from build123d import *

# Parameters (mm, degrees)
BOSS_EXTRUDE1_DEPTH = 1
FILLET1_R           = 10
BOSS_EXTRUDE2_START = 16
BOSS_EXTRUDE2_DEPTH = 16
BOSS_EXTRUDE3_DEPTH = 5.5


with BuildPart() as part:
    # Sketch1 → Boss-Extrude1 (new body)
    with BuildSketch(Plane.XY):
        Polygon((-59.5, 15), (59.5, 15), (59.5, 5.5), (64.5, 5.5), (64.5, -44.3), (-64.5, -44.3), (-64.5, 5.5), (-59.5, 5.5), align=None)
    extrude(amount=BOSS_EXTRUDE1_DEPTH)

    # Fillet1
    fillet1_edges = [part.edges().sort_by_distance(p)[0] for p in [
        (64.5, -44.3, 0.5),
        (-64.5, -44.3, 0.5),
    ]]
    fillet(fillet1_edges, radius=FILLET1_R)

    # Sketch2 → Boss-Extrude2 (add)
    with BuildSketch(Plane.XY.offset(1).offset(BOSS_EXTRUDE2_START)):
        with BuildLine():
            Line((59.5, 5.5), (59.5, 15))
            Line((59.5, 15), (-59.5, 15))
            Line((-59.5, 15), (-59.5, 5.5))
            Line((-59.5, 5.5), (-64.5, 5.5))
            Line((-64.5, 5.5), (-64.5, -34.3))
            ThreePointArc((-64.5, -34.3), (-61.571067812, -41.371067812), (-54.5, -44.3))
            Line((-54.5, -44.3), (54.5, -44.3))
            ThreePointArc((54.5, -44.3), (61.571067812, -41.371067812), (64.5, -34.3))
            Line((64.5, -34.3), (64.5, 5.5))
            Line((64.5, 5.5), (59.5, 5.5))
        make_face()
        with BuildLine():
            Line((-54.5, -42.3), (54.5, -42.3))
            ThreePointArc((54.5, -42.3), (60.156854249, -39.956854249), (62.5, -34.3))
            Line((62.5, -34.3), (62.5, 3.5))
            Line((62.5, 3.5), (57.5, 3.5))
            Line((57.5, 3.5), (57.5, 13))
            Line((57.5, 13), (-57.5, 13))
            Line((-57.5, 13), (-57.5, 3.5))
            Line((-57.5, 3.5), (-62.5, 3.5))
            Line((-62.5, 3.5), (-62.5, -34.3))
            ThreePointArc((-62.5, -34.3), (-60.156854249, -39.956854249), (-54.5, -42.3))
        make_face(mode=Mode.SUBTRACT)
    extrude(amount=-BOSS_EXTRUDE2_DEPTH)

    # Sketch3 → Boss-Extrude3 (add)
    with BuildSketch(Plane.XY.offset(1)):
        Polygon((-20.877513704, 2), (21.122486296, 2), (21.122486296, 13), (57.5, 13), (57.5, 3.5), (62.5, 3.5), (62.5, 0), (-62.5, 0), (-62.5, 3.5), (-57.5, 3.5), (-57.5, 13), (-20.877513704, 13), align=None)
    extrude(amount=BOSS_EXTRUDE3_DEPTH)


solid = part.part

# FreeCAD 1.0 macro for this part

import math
import FreeCAD as App
import Part
import Sketcher


def edges_at(feature, points):
    """Names of the edges that pass closest to the given points."""
    edges = feature.Shape.Edges
    near = lambda p: min(range(len(edges)), key=lambda i: edges[i].distToShape(Part.Vertex(*p))[0])
    return sorted({f"Edge{near(p) + 1}" for p in points})

doc = App.newDocument("Part")
body = doc.addObject("PartDesign::Body", "Body")

# Sketch on XY plane
sketch1 = body.newObject("Sketcher::SketchObject", "Sketch")
sketch1.AttachmentSupport = (doc.getObject("XY_Plane"), [""])
sketch1.MapMode = "FlatFace"
sketch1.addGeometry(Part.LineSegment(App.Vector(59.5, 15, 0), App.Vector(-59.5, 15, 0)), False)
sketch1.addGeometry(Part.LineSegment(App.Vector(-59.5, 15, 0), App.Vector(-59.5, 5.5, 0)), False)
sketch1.addGeometry(Part.LineSegment(App.Vector(-59.5, 5.5, 0), App.Vector(-64.5, 5.5, 0)), False)
sketch1.addGeometry(Part.LineSegment(App.Vector(-64.5, 5.5, 0), App.Vector(-64.5, -44.3, 0)), False)
sketch1.addGeometry(Part.LineSegment(App.Vector(-64.5, -44.3, 0), App.Vector(64.5, -44.3, 0)), False)
sketch1.addGeometry(Part.LineSegment(App.Vector(64.5, -44.3, 0), App.Vector(64.5, 5.5, 0)), False)
sketch1.addGeometry(Part.LineSegment(App.Vector(64.5, 5.5, 0), App.Vector(59.5, 5.5, 0)), False)
sketch1.addGeometry(Part.LineSegment(App.Vector(59.5, 5.5, 0), App.Vector(59.5, 15, 0)), False)
sketch1.addConstraint(Sketcher.Constraint("Coincident", 0, 2, 1, 1))
sketch1.addConstraint(Sketcher.Constraint("Coincident", 1, 2, 2, 1))
sketch1.addConstraint(Sketcher.Constraint("Coincident", 2, 2, 3, 1))
sketch1.addConstraint(Sketcher.Constraint("Coincident", 3, 2, 4, 1))
sketch1.addConstraint(Sketcher.Constraint("Coincident", 4, 2, 5, 1))
sketch1.addConstraint(Sketcher.Constraint("Coincident", 5, 2, 6, 1))
sketch1.addConstraint(Sketcher.Constraint("Coincident", 6, 2, 7, 1))
sketch1.addConstraint(Sketcher.Constraint("Coincident", 7, 2, 0, 1))
sketch1.addConstraint(Sketcher.Constraint("Horizontal", 0))
sketch1.addConstraint(Sketcher.Constraint("Vertical", 1))
sketch1.addConstraint(Sketcher.Constraint("Horizontal", 2))
sketch1.addConstraint(Sketcher.Constraint("Vertical", 3))
sketch1.addConstraint(Sketcher.Constraint("Horizontal", 4))
sketch1.addConstraint(Sketcher.Constraint("Vertical", 5))
sketch1.addConstraint(Sketcher.Constraint("Horizontal", 6))
sketch1.addConstraint(Sketcher.Constraint("Vertical", 7))
sketch1.addConstraint(Sketcher.Constraint("Symmetric", 2, 2, 5, 2, -2))
sketch1.addConstraint(Sketcher.Constraint("Equal", 2, 6))
sketch1.addConstraint(Sketcher.Constraint("DistanceX", 0, 2, 0, 1, 119.0))
sketch1.addConstraint(Sketcher.Constraint("DistanceX", 2, 2, 2, 1, 5.0))
sketch1.addConstraint(Sketcher.Constraint("DistanceY", 1, 2, 1, 1, 9.5))
sketch1.addConstraint(Sketcher.Constraint("DistanceY", 3, 2, 3, 1, 49.8))
sketch1.addConstraint(Sketcher.Constraint("DistanceY", -1, 1, 0, 2, 15.0))
pad1 = body.newObject("PartDesign::Pad", "Pad")
pad1.Profile = sketch1
pad1.Length = 1
doc.recompute()

fillet = body.newObject("PartDesign::Fillet", "Fillet")
fillet.Base = (pad1, edges_at(pad1, [(64.5, -44.3, 0.5), (-64.5, -44.3, 0.5)]))
fillet.Radius = 10

# Sketch on XY plane
sketch2 = body.newObject("Sketcher::SketchObject", "Sketch001")
sketch2.AttachmentSupport = (doc.getObject("XY_Plane"), [""])
sketch2.MapMode = "FlatFace"
sketch2.AttachmentOffset = App.Placement(App.Vector(0, 0, 17), App.Rotation())
sketch2.addGeometry(Part.LineSegment(App.Vector(59.5, 5.5, 0), App.Vector(59.5, 15, 0)), False)
sketch2.addGeometry(Part.LineSegment(App.Vector(59.5, 15, 0), App.Vector(-59.5, 15, 0)), False)
sketch2.addGeometry(Part.LineSegment(App.Vector(-59.5, 15, 0), App.Vector(-59.5, 5.5, 0)), False)
sketch2.addGeometry(Part.LineSegment(App.Vector(-59.5, 5.5, 0), App.Vector(-64.5, 5.5, 0)), False)
sketch2.addGeometry(Part.LineSegment(App.Vector(-64.5, 5.5, 0), App.Vector(-64.5, -34.3, 0)), False)
sketch2.addGeometry(Part.ArcOfCircle(Part.Circle(App.Vector(-54.5, -34.3, 0), App.Vector(0, 0, 1), 10), math.radians(180), math.radians(270)), False)
sketch2.addGeometry(Part.LineSegment(App.Vector(-54.5, -44.3, 0), App.Vector(54.5, -44.3, 0)), False)
sketch2.addGeometry(Part.ArcOfCircle(Part.Circle(App.Vector(54.5, -34.3, 0), App.Vector(0, 0, 1), 10), math.radians(-90), math.radians(0)), False)
sketch2.addGeometry(Part.LineSegment(App.Vector(64.5, -34.3, 0), App.Vector(64.5, 5.5, 0)), False)
sketch2.addGeometry(Part.LineSegment(App.Vector(64.5, 5.5, 0), App.Vector(59.5, 5.5, 0)), False)
sketch2.addGeometry(Part.LineSegment(App.Vector(54.5, -42.3, 0), App.Vector(-54.5, -42.3, 0)), False)
sketch2.addGeometry(Part.ArcOfCircle(Part.Circle(App.Vector(-54.5, -34.3, 0), App.Vector(0, 0, 1), 8), math.radians(-180), math.radians(-90)), False)
sketch2.addGeometry(Part.LineSegment(App.Vector(-62.5, -34.3, 0), App.Vector(-62.5, 3.5, 0)), False)
sketch2.addGeometry(Part.LineSegment(App.Vector(-62.5, 3.5, 0), App.Vector(-57.5, 3.5, 0)), False)
sketch2.addGeometry(Part.LineSegment(App.Vector(-57.5, 3.5, 0), App.Vector(-57.5, 13, 0)), False)
sketch2.addGeometry(Part.LineSegment(App.Vector(-57.5, 13, 0), App.Vector(57.5, 13, 0)), False)
sketch2.addGeometry(Part.LineSegment(App.Vector(57.5, 13, 0), App.Vector(57.5, 3.5, 0)), False)
sketch2.addGeometry(Part.LineSegment(App.Vector(57.5, 3.5, 0), App.Vector(62.5, 3.5, 0)), False)
sketch2.addGeometry(Part.LineSegment(App.Vector(62.5, 3.5, 0), App.Vector(62.5, -34.3, 0)), False)
sketch2.addGeometry(Part.ArcOfCircle(Part.Circle(App.Vector(54.5, -34.3, 0), App.Vector(0, 0, 1), 8), math.radians(-90), math.radians(0)), False)
sketch2.addConstraint(Sketcher.Constraint("Coincident", 0, 2, 1, 1))
sketch2.addConstraint(Sketcher.Constraint("Coincident", 1, 2, 2, 1))
sketch2.addConstraint(Sketcher.Constraint("Coincident", 2, 2, 3, 1))
sketch2.addConstraint(Sketcher.Constraint("Coincident", 3, 2, 4, 1))
sketch2.addConstraint(Sketcher.Constraint("Tangent", 4, 2, 5, 1))
sketch2.addConstraint(Sketcher.Constraint("Tangent", 5, 2, 6, 1))
sketch2.addConstraint(Sketcher.Constraint("Tangent", 6, 2, 7, 1))
sketch2.addConstraint(Sketcher.Constraint("Tangent", 7, 2, 8, 1))
sketch2.addConstraint(Sketcher.Constraint("Coincident", 8, 2, 9, 1))
sketch2.addConstraint(Sketcher.Constraint("Coincident", 9, 2, 0, 1))
sketch2.addConstraint(Sketcher.Constraint("Tangent", 10, 2, 11, 2))
sketch2.addConstraint(Sketcher.Constraint("Tangent", 11, 1, 12, 1))
sketch2.addConstraint(Sketcher.Constraint("Coincident", 12, 2, 13, 1))
sketch2.addConstraint(Sketcher.Constraint("Coincident", 13, 2, 14, 1))
sketch2.addConstraint(Sketcher.Constraint("Coincident", 14, 2, 15, 1))
sketch2.addConstraint(Sketcher.Constraint("Coincident", 15, 2, 16, 1))
sketch2.addConstraint(Sketcher.Constraint("Coincident", 16, 2, 17, 1))
sketch2.addConstraint(Sketcher.Constraint("Coincident", 17, 2, 18, 1))
sketch2.addConstraint(Sketcher.Constraint("Tangent", 18, 2, 19, 2))
sketch2.addConstraint(Sketcher.Constraint("Tangent", 19, 1, 10, 1))
sketch2.addConstraint(Sketcher.Constraint("Vertical", 0))
sketch2.addConstraint(Sketcher.Constraint("Horizontal", 1))
sketch2.addConstraint(Sketcher.Constraint("Vertical", 2))
sketch2.addConstraint(Sketcher.Constraint("Horizontal", 3))
sketch2.addConstraint(Sketcher.Constraint("Vertical", 4))
sketch2.addConstraint(Sketcher.Constraint("Horizontal", 6))
sketch2.addConstraint(Sketcher.Constraint("Vertical", 8))
sketch2.addConstraint(Sketcher.Constraint("Horizontal", 9))
sketch2.addConstraint(Sketcher.Constraint("Horizontal", 10))
sketch2.addConstraint(Sketcher.Constraint("Vertical", 12))
sketch2.addConstraint(Sketcher.Constraint("Horizontal", 13))
sketch2.addConstraint(Sketcher.Constraint("Vertical", 14))
sketch2.addConstraint(Sketcher.Constraint("Horizontal", 15))
sketch2.addConstraint(Sketcher.Constraint("Vertical", 16))
sketch2.addConstraint(Sketcher.Constraint("Horizontal", 17))
sketch2.addConstraint(Sketcher.Constraint("Vertical", 18))
sketch2.addConstraint(Sketcher.Constraint("Coincident", 11, 3, 5, 3))
sketch2.addConstraint(Sketcher.Constraint("Coincident", 19, 3, 7, 3))
sketch2.addConstraint(Sketcher.Constraint("Equal", 5, 7))
sketch2.addConstraint(Sketcher.Constraint("Symmetric", 3, 2, 8, 2, -2))
sketch2.addConstraint(Sketcher.Constraint("Symmetric", 13, 2, 16, 2, -2))
sketch2.addConstraint(Sketcher.Constraint("Equal", 3, 9))
sketch2.addConstraint(Sketcher.Constraint("Equal", 9, 13))
sketch2.addConstraint(Sketcher.Constraint("Equal", 2, 14))
sketch2.addConstraint(Sketcher.Constraint("Radius", 5, 10.0))
sketch2.addConstraint(Sketcher.Constraint("Radius", 11, 8.0))
sketch2.addConstraint(Sketcher.Constraint("DistanceX", 1, 2, 1, 1, 119.0))
sketch2.addConstraint(Sketcher.Constraint("DistanceX", 3, 2, 3, 1, 5.0))
sketch2.addConstraint(Sketcher.Constraint("DistanceY", 0, 1, 0, 2, 9.5))
sketch2.addConstraint(Sketcher.Constraint("DistanceY", 4, 2, 4, 1, 39.8))
sketch2.addConstraint(Sketcher.Constraint("DistanceY", 12, 1, 12, 2, 37.8))
sketch2.addConstraint(Sketcher.Constraint("DistanceY", -1, 1, 0, 2, 15.0))
pad2 = body.newObject("PartDesign::Pad", "Pad001")
pad2.Profile = sketch2
pad2.Length = 16
pad2.Reversed = True

# Sketch on XY plane
sketch3 = body.newObject("Sketcher::SketchObject", "Sketch002")
sketch3.AttachmentSupport = (doc.getObject("XY_Plane"), [""])
sketch3.MapMode = "FlatFace"
sketch3.AttachmentOffset = App.Placement(App.Vector(0, 0, 1), App.Rotation())
sketch3.addGeometry(Part.LineSegment(App.Vector(21.122486, 2, 0), App.Vector(-20.877514, 2, 0)), False)
sketch3.addGeometry(Part.LineSegment(App.Vector(-20.877514, 2, 0), App.Vector(-20.877514, 13, 0)), False)
sketch3.addGeometry(Part.LineSegment(App.Vector(-20.877514, 13, 0), App.Vector(-57.5, 13, 0)), False)
sketch3.addGeometry(Part.LineSegment(App.Vector(-57.5, 13, 0), App.Vector(-57.5, 3.5, 0)), False)
sketch3.addGeometry(Part.LineSegment(App.Vector(-57.5, 3.5, 0), App.Vector(-62.5, 3.5, 0)), False)
sketch3.addGeometry(Part.LineSegment(App.Vector(-62.5, 3.5, 0), App.Vector(-62.5, 0, 0)), False)
sketch3.addGeometry(Part.LineSegment(App.Vector(-62.5, 0, 0), App.Vector(62.5, 0, 0)), False)
sketch3.addGeometry(Part.LineSegment(App.Vector(62.5, 0, 0), App.Vector(62.5, 3.5, 0)), False)
sketch3.addGeometry(Part.LineSegment(App.Vector(62.5, 3.5, 0), App.Vector(57.5, 3.5, 0)), False)
sketch3.addGeometry(Part.LineSegment(App.Vector(57.5, 3.5, 0), App.Vector(57.5, 13, 0)), False)
sketch3.addGeometry(Part.LineSegment(App.Vector(57.5, 13, 0), App.Vector(21.122486, 13, 0)), False)
sketch3.addGeometry(Part.LineSegment(App.Vector(21.122486, 13, 0), App.Vector(21.122486, 2, 0)), False)
sketch3.addConstraint(Sketcher.Constraint("Coincident", 0, 2, 1, 1))
sketch3.addConstraint(Sketcher.Constraint("Coincident", 1, 2, 2, 1))
sketch3.addConstraint(Sketcher.Constraint("Coincident", 2, 2, 3, 1))
sketch3.addConstraint(Sketcher.Constraint("Coincident", 3, 2, 4, 1))
sketch3.addConstraint(Sketcher.Constraint("Coincident", 4, 2, 5, 1))
sketch3.addConstraint(Sketcher.Constraint("Coincident", 5, 2, 6, 1))
sketch3.addConstraint(Sketcher.Constraint("Coincident", 6, 2, 7, 1))
sketch3.addConstraint(Sketcher.Constraint("Coincident", 7, 2, 8, 1))
sketch3.addConstraint(Sketcher.Constraint("Coincident", 8, 2, 9, 1))
sketch3.addConstraint(Sketcher.Constraint("Coincident", 9, 2, 10, 1))
sketch3.addConstraint(Sketcher.Constraint("Coincident", 10, 2, 11, 1))
sketch3.addConstraint(Sketcher.Constraint("Coincident", 11, 2, 0, 1))
sketch3.addConstraint(Sketcher.Constraint("Horizontal", 0))
sketch3.addConstraint(Sketcher.Constraint("Vertical", 1))
sketch3.addConstraint(Sketcher.Constraint("Horizontal", 2))
sketch3.addConstraint(Sketcher.Constraint("Vertical", 3))
sketch3.addConstraint(Sketcher.Constraint("Horizontal", 4))
sketch3.addConstraint(Sketcher.Constraint("Vertical", 5))
sketch3.addConstraint(Sketcher.Constraint("Horizontal", 6))
sketch3.addConstraint(Sketcher.Constraint("Vertical", 7))
sketch3.addConstraint(Sketcher.Constraint("Horizontal", 8))
sketch3.addConstraint(Sketcher.Constraint("Vertical", 9))
sketch3.addConstraint(Sketcher.Constraint("Horizontal", 10))
sketch3.addConstraint(Sketcher.Constraint("Vertical", 11))
sketch3.addConstraint(Sketcher.Constraint("Symmetric", 5, 2, 6, 2, -1, 1))
sketch3.addConstraint(Sketcher.Constraint("Symmetric", 3, 2, 8, 2, -2))
sketch3.addConstraint(Sketcher.Constraint("Horizontal", 2, 2, 9, 2))
sketch3.addConstraint(Sketcher.Constraint("DistanceX", 0, 2, 0, 1, 42.0))
sketch3.addConstraint(Sketcher.Constraint("DistanceX", 4, 2, 4, 1, 5.0))
sketch3.addConstraint(Sketcher.Constraint("DistanceX", 6, 1, 6, 2, 125.0))
sketch3.addConstraint(Sketcher.Constraint("DistanceY", 1, 1, 1, 2, 11.0))
sketch3.addConstraint(Sketcher.Constraint("DistanceY", 3, 2, 3, 1, 9.5))
sketch3.addConstraint(Sketcher.Constraint("DistanceY", 5, 2, 5, 1, 3.5))
sketch3.addConstraint(Sketcher.Constraint("DistanceX", 2, 2, 2, 1, 36.622486))
pad3 = body.newObject("PartDesign::Pad", "Pad002")
pad3.Profile = sketch3
pad3.Length = 5.5

doc.recompute()
